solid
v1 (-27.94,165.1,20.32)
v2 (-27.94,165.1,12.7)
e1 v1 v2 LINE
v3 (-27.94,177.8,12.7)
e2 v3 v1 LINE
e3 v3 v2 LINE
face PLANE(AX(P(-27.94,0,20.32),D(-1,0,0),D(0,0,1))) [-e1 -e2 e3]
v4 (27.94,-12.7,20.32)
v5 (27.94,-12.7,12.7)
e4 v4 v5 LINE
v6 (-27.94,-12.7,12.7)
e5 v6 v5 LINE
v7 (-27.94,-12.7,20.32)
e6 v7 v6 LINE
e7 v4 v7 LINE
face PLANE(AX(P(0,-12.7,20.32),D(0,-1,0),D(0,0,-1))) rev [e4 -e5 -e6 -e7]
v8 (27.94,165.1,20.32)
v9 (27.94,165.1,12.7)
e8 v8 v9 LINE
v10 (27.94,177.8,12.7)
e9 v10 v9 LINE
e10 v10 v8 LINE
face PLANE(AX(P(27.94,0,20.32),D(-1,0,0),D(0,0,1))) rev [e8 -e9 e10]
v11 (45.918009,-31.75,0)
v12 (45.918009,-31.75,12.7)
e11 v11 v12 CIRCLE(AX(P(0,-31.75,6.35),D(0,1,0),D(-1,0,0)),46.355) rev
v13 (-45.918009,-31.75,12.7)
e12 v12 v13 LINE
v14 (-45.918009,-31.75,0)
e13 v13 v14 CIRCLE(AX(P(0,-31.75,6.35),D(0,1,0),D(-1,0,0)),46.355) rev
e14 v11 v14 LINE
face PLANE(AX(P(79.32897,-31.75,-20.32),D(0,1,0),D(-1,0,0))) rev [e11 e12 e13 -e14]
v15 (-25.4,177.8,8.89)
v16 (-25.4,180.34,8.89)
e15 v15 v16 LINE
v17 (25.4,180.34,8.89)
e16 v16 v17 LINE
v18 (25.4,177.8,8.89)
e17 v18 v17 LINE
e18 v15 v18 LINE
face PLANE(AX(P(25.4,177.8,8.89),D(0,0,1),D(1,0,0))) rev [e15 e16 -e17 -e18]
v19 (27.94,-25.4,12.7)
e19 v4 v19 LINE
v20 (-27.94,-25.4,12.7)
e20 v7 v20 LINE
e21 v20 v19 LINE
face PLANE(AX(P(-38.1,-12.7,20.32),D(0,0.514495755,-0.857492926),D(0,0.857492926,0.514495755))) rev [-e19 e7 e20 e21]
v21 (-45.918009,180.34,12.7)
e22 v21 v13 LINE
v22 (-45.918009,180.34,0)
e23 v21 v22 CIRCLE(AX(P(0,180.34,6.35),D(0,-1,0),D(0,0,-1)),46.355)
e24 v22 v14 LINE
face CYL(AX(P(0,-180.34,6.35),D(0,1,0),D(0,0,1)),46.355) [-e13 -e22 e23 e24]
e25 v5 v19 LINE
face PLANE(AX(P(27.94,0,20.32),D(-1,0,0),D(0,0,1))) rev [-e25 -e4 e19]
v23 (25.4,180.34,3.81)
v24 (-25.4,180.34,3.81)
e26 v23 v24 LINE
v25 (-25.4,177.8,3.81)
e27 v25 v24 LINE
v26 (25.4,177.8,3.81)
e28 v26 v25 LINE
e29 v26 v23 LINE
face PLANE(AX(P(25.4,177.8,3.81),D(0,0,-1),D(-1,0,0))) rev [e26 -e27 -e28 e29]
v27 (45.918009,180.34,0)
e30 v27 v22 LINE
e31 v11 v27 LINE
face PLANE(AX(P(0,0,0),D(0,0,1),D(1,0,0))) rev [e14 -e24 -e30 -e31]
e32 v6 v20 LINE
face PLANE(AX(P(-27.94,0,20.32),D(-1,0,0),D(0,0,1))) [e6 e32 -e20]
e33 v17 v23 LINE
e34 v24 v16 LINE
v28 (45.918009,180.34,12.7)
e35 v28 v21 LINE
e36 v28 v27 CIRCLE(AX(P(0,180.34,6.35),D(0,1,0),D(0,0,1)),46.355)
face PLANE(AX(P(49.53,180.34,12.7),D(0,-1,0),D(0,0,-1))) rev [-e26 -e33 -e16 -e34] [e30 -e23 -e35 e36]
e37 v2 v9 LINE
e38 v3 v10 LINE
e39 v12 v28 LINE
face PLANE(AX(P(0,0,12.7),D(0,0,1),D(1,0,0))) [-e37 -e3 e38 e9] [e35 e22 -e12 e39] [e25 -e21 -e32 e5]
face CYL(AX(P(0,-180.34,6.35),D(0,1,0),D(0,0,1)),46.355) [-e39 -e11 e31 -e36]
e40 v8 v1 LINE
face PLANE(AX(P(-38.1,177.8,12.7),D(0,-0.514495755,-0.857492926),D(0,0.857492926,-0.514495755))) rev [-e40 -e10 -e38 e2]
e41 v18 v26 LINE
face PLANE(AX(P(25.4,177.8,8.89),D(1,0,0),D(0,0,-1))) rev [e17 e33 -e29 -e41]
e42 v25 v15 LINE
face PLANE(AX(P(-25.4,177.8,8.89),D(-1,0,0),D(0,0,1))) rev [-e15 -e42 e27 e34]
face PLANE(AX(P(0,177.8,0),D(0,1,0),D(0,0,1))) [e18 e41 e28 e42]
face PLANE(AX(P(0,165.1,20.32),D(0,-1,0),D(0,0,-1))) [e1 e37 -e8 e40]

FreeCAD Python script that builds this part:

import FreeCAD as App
import Part
import Sketcher

V = App.Vector
Q = App.Units.Quantity

doc = App.newDocument("Part")
body = doc.addObject("PartDesign::Body", "Body")

# Sketch on XY plane
sketch1 = body.newObject("Sketcher::SketchObject", "Sketch")
sketch1.AttachmentSupport = (doc.getObject("XY_Plane"), [""])
sketch1.MapMode = "FlatFace"
sketch1.addGeometry(Part.LineSegment(V(-50, 180, 0), V(-50, -180, 0)), False)
sketch1.addGeometry(Part.LineSegment(V(-50, -180, 0), V(50, -180, 0)), False)
sketch1.addGeometry(Part.LineSegment(V(50, -180, 0), V(50, 180, 0)), False)
sketch1.addGeometry(Part.LineSegment(V(50, 180, 0), V(-50, 180, 0)), False)
sketch1.addConstraint(Sketcher.Constraint("Coincident", 0, 2, 1, 1))
sketch1.addConstraint(Sketcher.Constraint("Coincident", 1, 2, 2, 1))
sketch1.addConstraint(Sketcher.Constraint("Coincident", 2, 2, 3, 1))
sketch1.addConstraint(Sketcher.Constraint("Coincident", 3, 2, 0, 1))
sketch1.addConstraint(Sketcher.Constraint("Vertical", 0))
sketch1.addConstraint(Sketcher.Constraint("Horizontal", 1))
sketch1.addConstraint(Sketcher.Constraint("Vertical", 2))
sketch1.addConstraint(Sketcher.Constraint("Horizontal", 3))
sketch1.addConstraint(Sketcher.Constraint("Symmetric", 0, 2, 2, 2, -1, 1))
sketch1.addConstraint(Sketcher.Constraint("DistanceX", 1, 1, 1, 2, Q("3.9 in")))
sketch1.addConstraint(Sketcher.Constraint("DistanceY", 0, 2, 0, 1, Q("14.2 in")))
pad1 = body.newObject("PartDesign::Pad", "Pad")
pad1.Profile = sketch1
pad1.Length = Q("0.5 in")

# Sketch on XY plane
sketch2 = body.newObject("Sketcher::SketchObject", "Sketch001")
sketch2.AttachmentSupport = (doc.getObject("XY_Plane"), [""])
sketch2.MapMode = "FlatFace"
sketch2.addGeometry(Part.LineSegment(V(16, -38, 0), V(16, -50, 0)), False)
sketch2.addGeometry(Part.LineSegment(V(16, -50, 0), V(-16, -50, 0)), False)
sketch2.addGeometry(Part.LineSegment(V(-16, -50, 0), V(-16, -38, 0)), False)
sketch2.addGeometry(Part.LineSegment(V(-16, -38, 0), V(16, -38, 0)), False)
sketch2.addGeometry(Part.LineSegment(V(16, -154, 0), V(16, -165, 0)), False)
sketch2.addGeometry(Part.LineSegment(V(16, -165, 0), V(-16, -165, 0)), False)
sketch2.addGeometry(Part.LineSegment(V(-16, -165, 0), V(-16, -154, 0)), False)
sketch2.addGeometry(Part.LineSegment(V(-16, -154, 0), V(16, -154, 0)), False)
sketch2.addConstraint(Sketcher.Constraint("Coincident", 0, 2, 1, 1))
sketch2.addConstraint(Sketcher.Constraint("Coincident", 1, 2, 2, 1))
sketch2.addConstraint(Sketcher.Constraint("Coincident", 2, 2, 3, 1))
sketch2.addConstraint(Sketcher.Constraint("Coincident", 3, 2, 0, 1))
sketch2.addConstraint(Sketcher.Constraint("Coincident", 4, 2, 5, 1))
sketch2.addConstraint(Sketcher.Constraint("Coincident", 5, 2, 6, 1))
sketch2.addConstraint(Sketcher.Constraint("Coincident", 6, 2, 7, 1))
sketch2.addConstraint(Sketcher.Constraint("Coincident", 7, 2, 4, 1))
sketch2.addConstraint(Sketcher.Constraint("Vertical", 0))
sketch2.addConstraint(Sketcher.Constraint("Horizontal", 1))
sketch2.addConstraint(Sketcher.Constraint("Vertical", 2))
sketch2.addConstraint(Sketcher.Constraint("Horizontal", 3))
sketch2.addConstraint(Sketcher.Constraint("Vertical", 4))
sketch2.addConstraint(Sketcher.Constraint("Horizontal", 5))
sketch2.addConstraint(Sketcher.Constraint("Vertical", 6))
sketch2.addConstraint(Sketcher.Constraint("Horizontal", 7))
sketch2.addConstraint(Sketcher.Constraint("Vertical", 3, 2, 4, 2))
sketch2.addConstraint(Sketcher.Constraint("Vertical", 2, 2, 5, 2))
sketch2.addConstraint(Sketcher.Constraint("Equal", 2, 4))
sketch2.addConstraint(Sketcher.Constraint("DistanceY", 4, 2, 3, 2, Q("5 in")))
sketch2.addConstraint(Sketcher.Constraint("DistanceX", 1, 2, 1, 1, Q("1.26 in")))
sketch2.addConstraint(Sketcher.Constraint("DistanceY", 0, 2, 0, 1, Q("0.45 in")))
sketch2.addConstraint(Sketcher.Constraint("DistanceY", 2, 2, -1, 1, Q("1.5 in")))
sketch2.addConstraint(Sketcher.Constraint("DistanceX", -1, 1, 0, 2, Q("0.63 in")))
pad2 = body.newObject("PartDesign::Pad", "Pad001")
pad2.Profile = sketch2
pad2.Length = Q("0.8 in")
pad2.Reversed = True

# Sketch on XY plane
sketch3 = body.newObject("Sketcher::SketchObject", "Sketch002")
sketch3.AttachmentSupport = (doc.getObject("XY_Plane"), [""])
sketch3.MapMode = "FlatFace"
sketch3.AttachmentOffset = App.Placement(V(0, 0, 0.5 * 25.4), App.Rotation())
sketch3.addGeometry(Part.LineSegment(V(-28, 178, 0), V(-28, 165, 0)), False)
sketch3.addGeometry(Part.LineSegment(V(-28, 165, 0), V(28, 165, 0)), False)
sketch3.addGeometry(Part.LineSegment(V(28, 165, 0), V(28, 178, 0)), False)
sketch3.addGeometry(Part.LineSegment(V(28, 178, 0), V(-28, 178, 0)), False)
sketch3.addGeometry(Part.LineSegment(V(-28, -13, 0), V(-28, -25, 0)), False)
sketch3.addGeometry(Part.LineSegment(V(-28, -25, 0), V(28, -25, 0)), False)
sketch3.addGeometry(Part.LineSegment(V(28, -25, 0), V(28, -13, 0)), False)
sketch3.addGeometry(Part.LineSegment(V(28, -13, 0), V(-28, -13, 0)), False)
sketch3.addConstraint(Sketcher.Constraint("Coincident", 0, 2, 1, 1))
sketch3.addConstraint(Sketcher.Constraint("Coincident", 1, 2, 2, 1))
sketch3.addConstraint(Sketcher.Constraint("Coincident", 2, 2, 3, 1))
sketch3.addConstraint(Sketcher.Constraint("Coincident", 3, 2, 0, 1))
sketch3.addConstraint(Sketcher.Constraint("Coincident", 4, 2, 5, 1))
sketch3.addConstraint(Sketcher.Constraint("Coincident", 5, 2, 6, 1))
sketch3.addConstraint(Sketcher.Constraint("Coincident", 6, 2, 7, 1))
sketch3.addConstraint(Sketcher.Constraint("Coincident", 7, 2, 4, 1))
sketch3.addConstraint(Sketcher.Constraint("Vertical", 0))
sketch3.addConstraint(Sketcher.Constraint("Horizontal", 1))
sketch3.addConstraint(Sketcher.Constraint("Vertical", 2))
sketch3.addConstraint(Sketcher.Constraint("Horizontal", 3))
sketch3.addConstraint(Sketcher.Constraint("Vertical", 4))
sketch3.addConstraint(Sketcher.Constraint("Horizontal", 5))
sketch3.addConstraint(Sketcher.Constraint("Vertical", 6))
sketch3.addConstraint(Sketcher.Constraint("Horizontal", 7))
sketch3.addConstraint(Sketcher.Constraint("Vertical", 3, 2, 4, 2))
sketch3.addConstraint(Sketcher.Constraint("Vertical", 2, 2, 5, 2))
sketch3.addConstraint(Sketcher.Constraint("Equal", 2, 4))
sketch3.addConstraint(Sketcher.Constraint("DistanceX", 1, 1, 1, 2, Q("2.2 in")))
sketch3.addConstraint(Sketcher.Constraint("DistanceY", 0, 2, 0, 1, Q("0.5 in")))
sketch3.addConstraint(Sketcher.Constraint("DistanceY", -1, 1, 2, 2, Q("7 in")))
sketch3.addConstraint(Sketcher.Constraint("DistanceY", 4, 2, -1, 1, Q("1 in")))
sketch3.addConstraint(Sketcher.Constraint("DistanceX", 0, 2, -1, 1, Q("1.1 in")))
pad3 = body.newObject("PartDesign::Pad", "Pad002")
pad3.Profile = sketch3
pad3.Length = Q("0.6 in")
pad3.Midplane = True
doc.recompute()

datumplane = body.newObject("PartDesign::Plane", "DatumPlane")
datumplane.AttachmentSupport = (doc.getObject("XY_Plane"), [""])
datumplane.MapMode = "FlatFace"
datumplane.AttachmentOffset = App.Placement(V(0, 0, 0.25 * 25.4), App.Rotation())
mirrored = body.newObject("PartDesign::Mirrored", "Mirrored")
mirrored.Originals = [pad2]
mirrored.MirrorPlane = (datumplane, [""])
body.Tip = mirrored

# Sketch on YZ plane
sketch4 = body.newObject("Sketcher::SketchObject", "Sketch003")
sketch4.AttachmentSupport = (doc.getObject("YZ_Plane"), [""])
sketch4.MapMode = "FlatFace"
sketch4.addGeometry(Part.LineSegment(V(-154, -20, 0), V(-165, 0, 0)), False)
sketch4.addGeometry(Part.LineSegment(V(-165, 0, 0), V(-165, -20, 0)), False)
sketch4.addGeometry(Part.LineSegment(V(-165, -20, 0), V(-154, -20, 0)), False)
sketch4.addGeometry(Part.LineSegment(V(-165, 13, 0), V(-154, 33, 0)), False)
sketch4.addGeometry(Part.LineSegment(V(-154, 33, 0), V(-165, 33, 0)), False)
sketch4.addGeometry(Part.LineSegment(V(-165, 33, 0), V(-165, 13, 0)), False)
sketch4.addGeometry(Part.LineSegment(V(-38, 33, 0), V(-50, 33, 0)), False)
sketch4.addGeometry(Part.LineSegment(V(-50, 33, 0), V(-38, 13, 0)), False)
sketch4.addGeometry(Part.LineSegment(V(-38, 13, 0), V(-38, 33, 0)), False)
sketch4.addGeometry(Part.LineSegment(V(-38, 0, 0), V(-50, -20, 0)), False)
sketch4.addGeometry(Part.LineSegment(V(-50, -20, 0), V(-38, -20, 0)), False)
sketch4.addGeometry(Part.LineSegment(V(-38, -20, 0), V(-38, 0, 0)), False)
sketch4.addGeometry(Part.LineSegment(V(165, 20, 0), V(178, 13, 0)), False)
sketch4.addGeometry(Part.LineSegment(V(178, 13, 0), V(178, 20, 0)), False)
sketch4.addGeometry(Part.LineSegment(V(178, 20, 0), V(165, 20, 0)), False)
sketch4.addGeometry(Part.LineSegment(V(-25, 13, 0), V(-13, 20, 0)), False)
sketch4.addGeometry(Part.LineSegment(V(-13, 20, 0), V(-25, 20, 0)), False)
sketch4.addGeometry(Part.LineSegment(V(-25, 20, 0), V(-25, 13, 0)), False)
sketch4.addConstraint(Sketcher.Constraint("Coincident", 0, 2, 1, 1))
sketch4.addConstraint(Sketcher.Constraint("Coincident", 1, 2, 2, 1))
sketch4.addConstraint(Sketcher.Constraint("Coincident", 2, 2, 0, 1))
sketch4.addConstraint(Sketcher.Constraint("Coincident", 3, 2, 4, 1))
sketch4.addConstraint(Sketcher.Constraint("Coincident", 4, 2, 5, 1))
sketch4.addConstraint(Sketcher.Constraint("Coincident", 5, 2, 3, 1))
sketch4.addConstraint(Sketcher.Constraint("Coincident", 6, 2, 7, 1))
sketch4.addConstraint(Sketcher.Constraint("Coincident", 7, 2, 8, 1))
sketch4.addConstraint(Sketcher.Constraint("Coincident", 8, 2, 6, 1))
sketch4.addConstraint(Sketcher.Constraint("Coincident", 9, 2, 10, 1))
sketch4.addConstraint(Sketcher.Constraint("Coincident", 10, 2, 11, 1))
sketch4.addConstraint(Sketcher.Constraint("Coincident", 11, 2, 9, 1))
sketch4.addConstraint(Sketcher.Constraint("Coincident", 12, 2, 13, 1))
sketch4.addConstraint(Sketcher.Constraint("Coincident", 13, 2, 14, 1))
sketch4.addConstraint(Sketcher.Constraint("Coincident", 14, 2, 12, 1))
sketch4.addConstraint(Sketcher.Constraint("Coincident", 15, 2, 16, 1))
sketch4.addConstraint(Sketcher.Constraint("Coincident", 16, 2, 17, 1))
sketch4.addConstraint(Sketcher.Constraint("Coincident", 17, 2, 15, 1))
sketch4.addConstraint(Sketcher.Constraint("Vertical", 1))
sketch4.addConstraint(Sketcher.Constraint("Horizontal", 2))
sketch4.addConstraint(Sketcher.Constraint("Horizontal", 4))
sketch4.addConstraint(Sketcher.Constraint("Vertical", 5))
sketch4.addConstraint(Sketcher.Constraint("Horizontal", 6))
sketch4.addConstraint(Sketcher.Constraint("Vertical", 8))
sketch4.addConstraint(Sketcher.Constraint("Horizontal", 10))
sketch4.addConstraint(Sketcher.Constraint("Vertical", 11))
sketch4.addConstraint(Sketcher.Constraint("Vertical", 13))
sketch4.addConstraint(Sketcher.Constraint("Horizontal", 14))
sketch4.addConstraint(Sketcher.Constraint("Horizontal", 16))
sketch4.addConstraint(Sketcher.Constraint("Vertical", 17))
sketch4.addConstraint(Sketcher.Constraint("Symmetric", 1, 2, 14, 2, -1, 1))
sketch4.addConstraint(Sketcher.Constraint("PointOnObject", 0, 2, -1))
sketch4.addConstraint(Sketcher.Constraint("PointOnObject", 11, 2, -1))
sketch4.addConstraint(Sketcher.Constraint("Parallel", 0, 7))
sketch4.addConstraint(Sketcher.Constraint("Parallel", 3, 9))
sketch4.addConstraint(Sketcher.Constraint("Horizontal", 4, 2, 6, 2))
sketch4.addConstraint(Sketcher.Constraint("Horizontal", 5, 2, 7, 2))
sketch4.addConstraint(Sketcher.Constraint("Horizontal", 2, 2, 9, 2))
sketch4.addConstraint(Sketcher.Constraint("Horizontal", 7, 2, 12, 2))
sketch4.addConstraint(Sketcher.Constraint("Horizontal", 14, 2, 15, 2))
sketch4.addConstraint(Sketcher.Constraint("Horizontal", 12, 2, 17, 2))
sketch4.addConstraint(Sketcher.Constraint("Vertical", 2, 2, 3, 2))
sketch4.addConstraint(Sketcher.Constraint("Vertical", 1, 2, 4, 2))
sketch4.addConstraint(Sketcher.Constraint("Vertical", 6, 2, 9, 2))
sketch4.addConstraint(Sketcher.Constraint("Vertical", 8, 2, 10, 2))
sketch4.addConstraint(Sketcher.Constraint("Equal", 14, 16))
sketch4.addConstraint(Sketcher.Constraint("DistanceX", 14, 2, 14, 1, Q("0.5 in")))
sketch4.addConstraint(Sketcher.Constraint("DistanceY", 1, 2, 1, 1, Q("0.8 in")))
sketch4.addConstraint(Sketcher.Constraint("DistanceY", 13, 1, 13, 2, Q("0.3 in")))
sketch4.addConstraint(Sketcher.Constraint("DistanceX", -1, 1, 12, 2, Q("7 in")))
sketch4.addConstraint(Sketcher.Constraint("DistanceX", 16, 2, -1, 1, Q("1 in")))
sketch4.addConstraint(Sketcher.Constraint("DistanceX", 5, 2, 7, 2, Q("5 in")))
sketch4.addConstraint(Sketcher.Constraint("DistanceX", 2, 1, 2, 2, Q("0.45 in")))
pocket1 = body.newObject("PartDesign::Pocket", "Pocket")
pocket1.Profile = sketch4
pocket1.Length = Q("3 in")
pocket1.Midplane = True

# Sketch on XZ plane
sketch5 = body.newObject("Sketcher::SketchObject", "Sketch004")
sketch5.AttachmentSupport = (doc.getObject("XZ_Plane"), [""])
sketch5.MapMode = "FlatFace"
sketch5.AttachmentOffset = App.Placement(V(0, 0, -7.1 * 25.4), App.Rotation())
sketch5.addGeometry(Part.LineSegment(V(-25, 4, 0), V(-25, 9, 0)), False)
sketch5.addGeometry(Part.LineSegment(V(-25, 9, 0), V(25, 9, 0)), False)
sketch5.addGeometry(Part.LineSegment(V(25, 9, 0), V(25, 4, 0)), False)
sketch5.addGeometry(Part.LineSegment(V(25, 4, 0), V(-25, 4, 0)), False)
sketch5.addConstraint(Sketcher.Constraint("Coincident", 0, 2, 1, 1))
sketch5.addConstraint(Sketcher.Constraint("Coincident", 1, 2, 2, 1))
sketch5.addConstraint(Sketcher.Constraint("Coincident", 2, 2, 3, 1))
sketch5.addConstraint(Sketcher.Constraint("Coincident", 3, 2, 0, 1))
sketch5.addConstraint(Sketcher.Constraint("Vertical", 0))
sketch5.addConstraint(Sketcher.Constraint("Horizontal", 1))
sketch5.addConstraint(Sketcher.Constraint("Vertical", 2))
sketch5.addConstraint(Sketcher.Constraint("Horizontal", 3))
sketch5.addConstraint(Sketcher.Constraint("DistanceX", 1, 1, 1, 2, Q("2 in")))
sketch5.addConstraint(Sketcher.Constraint("DistanceY", 0, 1, 0, 2, Q("0.2 in")))
sketch5.addConstraint(Sketcher.Constraint("DistanceX", 0, 2, -1, 1, Q("1 in")))
sketch5.addConstraint(Sketcher.Constraint("DistanceY", -1, 1, 0, 2, Q("0.35 in")))
pocket2 = body.newObject("PartDesign::Pocket", "Pocket001")
pocket2.Profile = sketch5
pocket2.Length = Q("0.1 in")
pocket2.Reversed = True
doc.recompute()

mirrored2 = body.newObject("PartDesign::Mirrored", "Mirrored001")
mirrored2.Originals = [pocket2]
mirrored2.MirrorPlane = (doc.getObject("XZ_Plane"), [""])
body.Tip = mirrored2

# Sketch on XZ plane
sketch6 = body.newObject("Sketcher::SketchObject", "Sketch005")
sketch6.AttachmentSupport = (doc.getObject("XZ_Plane"), [""])
sketch6.MapMode = "FlatFace"
sketch6.AttachmentOffset = App.Placement(V(0, 0, -7.1 * 25.4), App.Rotation())
sketch6.addGeometry(Part.Circle(V(0, 6, 0), V(0, 0, 1), 51), False)
sketch6.addGeometry(Part.Circle(V(0, 6, 0), V(0, 0, 1), 46), False)
sketch6.addConstraint(Sketcher.Constraint("Coincident", 1, 3, 0, 3))
sketch6.addConstraint(Sketcher.Constraint("PointOnObject", 0, 3, -2))
sketch6.addConstraint(Sketcher.Constraint("Diameter", 0, Q("4 in")))
sketch6.addConstraint(Sketcher.Constraint("Diameter", 1, Q("3.65 in")))
sketch6.addConstraint(Sketcher.Constraint("DistanceY", -1, 1, 0, 3, Q("0.25 in")))
pocket3 = body.newObject("PartDesign::Pocket", "Pocket002")
pocket3.Profile = sketch6
pocket3.Type = "ThroughAll"
pocket3.Reversed = True

# Sketch on XY plane
sketch7 = body.newObject("Sketcher::SketchObject", "Sketch006")
sketch7.AttachmentSupport = (doc.getObject("XY_Plane"), [""])
sketch7.MapMode = "FlatFace"
sketch7.addGeometry(Part.LineSegment(V(-79, -32, 0), V(-79, -195, 0)), False)
sketch7.addGeometry(Part.LineSegment(V(-79, -195, 0), V(79, -195, 0)), False)
sketch7.addGeometry(Part.LineSegment(V(79, -195, 0), V(79, -32, 0)), False)
sketch7.addGeometry(Part.LineSegment(V(79, -32, 0), V(-79, -32, 0)), False)
sketch7.addConstraint(Sketcher.Constraint("Coincident", 0, 2, 1, 1))
sketch7.addConstraint(Sketcher.Constraint("Coincident", 1, 2, 2, 1))
sketch7.addConstraint(Sketcher.Constraint("Coincident", 2, 2, 3, 1))
sketch7.addConstraint(Sketcher.Constraint("Coincident", 3, 2, 0, 1))
sketch7.addConstraint(Sketcher.Constraint("Vertical", 0))
sketch7.addConstraint(Sketcher.Constraint("Horizontal", 1))
sketch7.addConstraint(Sketcher.Constraint("Vertical", 2))
sketch7.addConstraint(Sketcher.Constraint("Horizontal", 3))
sketch7.addConstraint(Sketcher.Constraint("DistanceY", 2, 2, -1, 1, Q("1.25 in")))
sketch7.addConstraint(Sketcher.Constraint("DistanceX", 1, 1, 1, 2, 158.320369))
sketch7.addConstraint(Sketcher.Constraint("DistanceX", 0, 2, -1, 1, 78.9914))
sketch7.addConstraint(Sketcher.Constraint("DistanceY", 0, 2, 0, 1, 163.138922))
pocket4 = body.newObject("PartDesign::Pocket", "Pocket003")
pocket4.Profile = sketch7
pocket4.Type = "ThroughAll"
pocket4.Midplane = True

doc.recompute()
